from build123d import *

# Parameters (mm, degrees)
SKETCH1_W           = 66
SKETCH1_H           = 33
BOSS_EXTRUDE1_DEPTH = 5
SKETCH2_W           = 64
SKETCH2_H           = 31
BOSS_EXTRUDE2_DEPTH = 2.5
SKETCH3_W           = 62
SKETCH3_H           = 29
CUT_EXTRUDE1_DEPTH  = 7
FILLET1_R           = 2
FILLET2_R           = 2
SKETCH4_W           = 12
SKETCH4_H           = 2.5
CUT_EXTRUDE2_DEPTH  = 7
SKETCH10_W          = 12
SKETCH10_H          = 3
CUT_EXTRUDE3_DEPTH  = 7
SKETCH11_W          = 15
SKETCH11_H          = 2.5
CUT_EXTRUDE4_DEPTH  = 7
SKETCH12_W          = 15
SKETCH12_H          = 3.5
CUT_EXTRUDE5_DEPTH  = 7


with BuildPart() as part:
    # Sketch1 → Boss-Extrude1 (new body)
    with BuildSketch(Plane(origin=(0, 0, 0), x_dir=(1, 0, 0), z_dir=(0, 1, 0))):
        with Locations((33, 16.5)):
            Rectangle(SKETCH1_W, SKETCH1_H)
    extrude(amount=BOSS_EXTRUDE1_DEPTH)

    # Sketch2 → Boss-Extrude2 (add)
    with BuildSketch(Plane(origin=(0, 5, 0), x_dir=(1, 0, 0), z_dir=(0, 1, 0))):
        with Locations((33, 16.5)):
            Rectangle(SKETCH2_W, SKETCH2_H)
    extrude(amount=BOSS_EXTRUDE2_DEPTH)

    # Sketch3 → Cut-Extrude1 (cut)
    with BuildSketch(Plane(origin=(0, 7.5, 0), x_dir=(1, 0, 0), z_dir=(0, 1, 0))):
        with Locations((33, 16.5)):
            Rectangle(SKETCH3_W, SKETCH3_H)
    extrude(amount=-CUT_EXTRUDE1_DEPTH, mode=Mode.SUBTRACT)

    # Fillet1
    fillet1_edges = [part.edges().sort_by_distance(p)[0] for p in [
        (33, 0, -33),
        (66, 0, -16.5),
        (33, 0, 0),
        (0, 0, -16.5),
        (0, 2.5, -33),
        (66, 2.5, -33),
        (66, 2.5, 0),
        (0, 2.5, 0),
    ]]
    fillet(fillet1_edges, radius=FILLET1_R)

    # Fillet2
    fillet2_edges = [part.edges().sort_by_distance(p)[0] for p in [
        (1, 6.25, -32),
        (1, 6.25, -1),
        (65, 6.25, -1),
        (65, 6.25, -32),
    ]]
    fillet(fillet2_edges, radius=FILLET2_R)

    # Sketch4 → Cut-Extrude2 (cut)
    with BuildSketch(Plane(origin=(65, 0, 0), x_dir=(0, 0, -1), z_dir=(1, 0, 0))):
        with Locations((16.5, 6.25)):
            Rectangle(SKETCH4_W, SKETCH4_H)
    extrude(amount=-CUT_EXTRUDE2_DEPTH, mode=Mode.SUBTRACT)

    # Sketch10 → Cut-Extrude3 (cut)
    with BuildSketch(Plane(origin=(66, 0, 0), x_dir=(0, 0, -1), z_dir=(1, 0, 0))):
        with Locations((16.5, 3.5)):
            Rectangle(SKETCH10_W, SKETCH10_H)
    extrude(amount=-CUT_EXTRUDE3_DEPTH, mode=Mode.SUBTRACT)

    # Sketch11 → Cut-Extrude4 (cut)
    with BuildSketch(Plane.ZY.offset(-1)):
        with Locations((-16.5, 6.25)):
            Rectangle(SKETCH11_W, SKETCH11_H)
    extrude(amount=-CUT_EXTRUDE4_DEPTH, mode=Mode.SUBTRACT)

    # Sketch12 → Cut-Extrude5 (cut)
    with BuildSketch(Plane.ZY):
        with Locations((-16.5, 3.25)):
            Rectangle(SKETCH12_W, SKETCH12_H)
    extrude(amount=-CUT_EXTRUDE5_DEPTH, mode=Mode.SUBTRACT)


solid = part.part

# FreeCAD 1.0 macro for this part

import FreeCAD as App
import Part
import Sketcher


def edges_at(feature, points):
    """Names of the edges that pass closest to the given points."""
    edges = feature.Shape.Edges
    near = lambda p: min(range(len(edges)), key=lambda i: edges[i].distToShape(Part.Vertex(*p))[0])
    return sorted({f"Edge{near(p) + 1}" for p in points})


def add_polygon(sketch, points):
    """Adds a closed chain of lines whose ends are joined by coincident constraints."""
    first, n = sketch.GeometryCount, len(points)
    for a, b in zip(points, points[1:] + points[:1]):
        sketch.addGeometry(Part.LineSegment(App.Vector(*a, 0), App.Vector(*b, 0)), False)
    for i in range(n):
        sketch.addConstraint(Sketcher.Constraint("Coincident", first + i, 2, first + (i + 1) % n, 1))

doc = App.newDocument("Part")
body = doc.addObject("PartDesign::Body", "Body")

sketch1 = doc.addObject("Sketcher::SketchObject", "Sketch")
body.addObject(sketch1)
sketch1.AttachmentSupport = (doc.XZ_Plane, [""])
sketch1.MapMode = "FlatFace"
add_polygon(sketch1, [(0, -33), (0, 0), (66, 0), (66, -33)])
sketch1.addConstraint(Sketcher.Constraint("Vertical", 0))
sketch1.addConstraint(Sketcher.Constraint("Horizontal", 1))
sketch1.addConstraint(Sketcher.Constraint("Vertical", 2))
sketch1.addConstraint(Sketcher.Constraint("Horizontal", 3))
sketch1.addConstraint(Sketcher.Constraint("Coincident", 0, 2, -1, 1))
sketch1.addConstraint(Sketcher.Constraint("DistanceX", 1, 1, 1, 2, 66.0))
sketch1.addConstraint(Sketcher.Constraint("DistanceY", 0, 1, 0, 2, 33.0))
pad1 = doc.addObject("PartDesign::Pad", "Pad")
body.addObject(pad1)
pad1.Profile = sketch1
pad1.Length = 5
pad1.Reversed = True

sketch2 = doc.addObject("Sketcher::SketchObject", "Sketch001")
body.addObject(sketch2)
sketch2.AttachmentSupport = (doc.XZ_Plane, [""])
sketch2.MapMode = "FlatFace"
sketch2.AttachmentOffset = App.Placement(App.Vector(0, 0, -5), App.Rotation())
add_polygon(sketch2, [(1, -32), (1, -1), (65, -1), (65, -32)])
sketch2.addConstraint(Sketcher.Constraint("Vertical", 0))
sketch2.addConstraint(Sketcher.Constraint("Horizontal", 1))
sketch2.addConstraint(Sketcher.Constraint("Vertical", 2))
sketch2.addConstraint(Sketcher.Constraint("Horizontal", 3))
sketch2.addConstraint(Sketcher.Constraint("DistanceX", 1, 1, 1, 2, 64.0))
sketch2.addConstraint(Sketcher.Constraint("DistanceY", 0, 1, 0, 2, 31.0))
sketch2.addConstraint(Sketcher.Constraint("DistanceX", -1, 1, 0, 2, 1.0))
sketch2.addConstraint(Sketcher.Constraint("DistanceY", 0, 2, -1, 1, 1.0))
pad2 = doc.addObject("PartDesign::Pad", "Pad001")
body.addObject(pad2)
pad2.Profile = sketch2
pad2.Length = 2.5
pad2.Reversed = True

sketch3 = doc.addObject("Sketcher::SketchObject", "Sketch002")
body.addObject(sketch3)
sketch3.AttachmentSupport = (doc.XZ_Plane, [""])
sketch3.MapMode = "FlatFace"
sketch3.AttachmentOffset = App.Placement(App.Vector(0, 0, -7.5), App.Rotation())
add_polygon(sketch3, [(2, -31), (2, -2), (64, -2), (64, -31)])
sketch3.addConstraint(Sketcher.Constraint("Vertical", 0))
sketch3.addConstraint(Sketcher.Constraint("Horizontal", 1))
sketch3.addConstraint(Sketcher.Constraint("Vertical", 2))
sketch3.addConstraint(Sketcher.Constraint("Horizontal", 3))
sketch3.addConstraint(Sketcher.Constraint("DistanceX", 1, 1, 1, 2, 62.0))
sketch3.addConstraint(Sketcher.Constraint("DistanceY", 0, 1, 0, 2, 29.0))
sketch3.addConstraint(Sketcher.Constraint("DistanceX", -1, 1, 0, 2, 2.0))
sketch3.addConstraint(Sketcher.Constraint("DistanceY", 0, 2, -1, 1, 2.0))
pocket1 = doc.addObject("PartDesign::Pocket", "Pocket")
body.addObject(pocket1)
pocket1.Profile = sketch3
pocket1.Length = 7
pocket1.Reversed = True
doc.recompute()

fillet = doc.addObject("PartDesign::Fillet", "Fillet")
body.addObject(fillet)
fillet.Base = (pocket1, edges_at(pocket1, [
    (33, 0, -33),
    (66, 0, -16.5),
    (33, 0, 0),
    (0, 0, -16.5),
    (0, 2.5, -33),
    (66, 2.5, -33),
    (66, 2.5, 0),
    (0, 2.5, 0),
]))
fillet.Radius = 2
doc.recompute()

fillet2 = doc.addObject("PartDesign::Fillet", "Fillet001")
body.addObject(fillet2)
fillet2.Base = (fillet, edges_at(fillet, [
    (1, 6.25, -32),
    (1, 6.25, -1),
    (65, 6.25, -1),
    (65, 6.25, -32),
]))
fillet2.Radius = 2

sketch4 = doc.addObject("Sketcher::SketchObject", "Sketch003")
body.addObject(sketch4)
sketch4.AttachmentSupport = (doc.YZ_Plane, [""])
sketch4.MapMode = "FlatFace"
sketch4.AttachmentOffset = App.Placement(App.Vector(0, 0, 65), App.Rotation())
add_polygon(sketch4, [(7.5, -10.5), (5, -10.5), (5, -22.5), (7.5, -22.5)])
sketch4.addConstraint(Sketcher.Constraint("Horizontal", 0))
sketch4.addConstraint(Sketcher.Constraint("Vertical", 1))
sketch4.addConstraint(Sketcher.Constraint("Horizontal", 2))
sketch4.addConstraint(Sketcher.Constraint("Vertical", 3))
sketch4.addConstraint(Sketcher.Constraint("DistanceY", 1, 2, 1, 1, 12.0))
sketch4.addConstraint(Sketcher.Constraint("DistanceX", 0, 2, 0, 1, 2.5))
sketch4.addConstraint(Sketcher.Constraint("DistanceX", -1, 1, 0, 2, 5.0))
sketch4.addConstraint(Sketcher.Constraint("DistanceY", 0, 2, -1, 1, 10.5))
pocket2 = doc.addObject("PartDesign::Pocket", "Pocket001")
body.addObject(pocket2)
pocket2.Profile = sketch4
pocket2.Length = 7

sketch5 = doc.addObject("Sketcher::SketchObject", "Sketch004")
body.addObject(sketch5)
sketch5.AttachmentSupport = (doc.YZ_Plane, [""])
sketch5.MapMode = "FlatFace"
sketch5.AttachmentOffset = App.Placement(App.Vector(0, 0, 66), App.Rotation())
add_polygon(sketch5, [(5, -10.5), (2, -10.5), (2, -22.5), (5, -22.5)])
sketch5.addConstraint(Sketcher.Constraint("Horizontal", 0))
sketch5.addConstraint(Sketcher.Constraint("Vertical", 1))
sketch5.addConstraint(Sketcher.Constraint("Horizontal", 2))
sketch5.addConstraint(Sketcher.Constraint("Vertical", 3))
sketch5.addConstraint(Sketcher.Constraint("DistanceX", 0, 2, 0, 1, 3.0))
sketch5.addConstraint(Sketcher.Constraint("DistanceY", 1, 2, 1, 1, 12.0))
sketch5.addConstraint(Sketcher.Constraint("DistanceX", -1, 1, 0, 2, 2.0))
sketch5.addConstraint(Sketcher.Constraint("DistanceY", 0, 2, -1, 1, 10.5))
pocket3 = doc.addObject("PartDesign::Pocket", "Pocket002")
body.addObject(pocket3)
pocket3.Profile = sketch5
pocket3.Length = 7

sketch6 = doc.addObject("Sketcher::SketchObject", "Sketch005")
body.addObject(sketch6)
sketch6.AttachmentSupport = (doc.YZ_Plane, [""])
sketch6.MapMode = "FlatFace"
sketch6.AttachmentOffset = App.Placement(App.Vector(0, 0, 1), App.Rotation())
add_polygon(sketch6, [(7.5, -24), (5, -24), (5, -9), (7.5, -9)])
sketch6.addConstraint(Sketcher.Constraint("Horizontal", 0))
sketch6.addConstraint(Sketcher.Constraint("Vertical", 1))
sketch6.addConstraint(Sketcher.Constraint("Horizontal", 2))
sketch6.addConstraint(Sketcher.Constraint("Vertical", 3))
sketch6.addConstraint(Sketcher.Constraint("DistanceY", 1, 1, 1, 2, 15.0))
sketch6.addConstraint(Sketcher.Constraint("DistanceX", 0, 2, 0, 1, 2.5))
sketch6.addConstraint(Sketcher.Constraint("DistanceX", -1, 1, 0, 2, 5.0))
sketch6.addConstraint(Sketcher.Constraint("DistanceY", 0, 2, -1, 1, 24.0))
pocket4 = doc.addObject("PartDesign::Pocket", "Pocket003")
body.addObject(pocket4)
pocket4.Profile = sketch6
pocket4.Length = 7
pocket4.Reversed = True

sketch7 = doc.addObject("Sketcher::SketchObject", "Sketch006")
body.addObject(sketch7)
sketch7.AttachmentSupport = (doc.YZ_Plane, [""])
sketch7.MapMode = "FlatFace"
add_polygon(sketch7, [(5, -24), (1.5, -24), (1.5, -9), (5, -9)])
sketch7.addConstraint(Sketcher.Constraint("Horizontal", 0))
sketch7.addConstraint(Sketcher.Constraint("Vertical", 1))
sketch7.addConstraint(Sketcher.Constraint("Horizontal", 2))
sketch7.addConstraint(Sketcher.Constraint("Vertical", 3))
sketch7.addConstraint(Sketcher.Constraint("DistanceY", 1, 1, 1, 2, 15.0))
sketch7.addConstraint(Sketcher.Constraint("DistanceX", 0, 2, 0, 1, 3.5))
sketch7.addConstraint(Sketcher.Constraint("DistanceY", 0, 2, -1, 1, 24.0))
sketch7.addConstraint(Sketcher.Constraint("DistanceX", -1, 1, 2, 2, 5.0))
pocket5 = doc.addObject("PartDesign::Pocket", "Pocket004")
body.addObject(pocket5)
pocket5.Profile = sketch7
pocket5.Length = 7
pocket5.Reversed = True

doc.recompute()
